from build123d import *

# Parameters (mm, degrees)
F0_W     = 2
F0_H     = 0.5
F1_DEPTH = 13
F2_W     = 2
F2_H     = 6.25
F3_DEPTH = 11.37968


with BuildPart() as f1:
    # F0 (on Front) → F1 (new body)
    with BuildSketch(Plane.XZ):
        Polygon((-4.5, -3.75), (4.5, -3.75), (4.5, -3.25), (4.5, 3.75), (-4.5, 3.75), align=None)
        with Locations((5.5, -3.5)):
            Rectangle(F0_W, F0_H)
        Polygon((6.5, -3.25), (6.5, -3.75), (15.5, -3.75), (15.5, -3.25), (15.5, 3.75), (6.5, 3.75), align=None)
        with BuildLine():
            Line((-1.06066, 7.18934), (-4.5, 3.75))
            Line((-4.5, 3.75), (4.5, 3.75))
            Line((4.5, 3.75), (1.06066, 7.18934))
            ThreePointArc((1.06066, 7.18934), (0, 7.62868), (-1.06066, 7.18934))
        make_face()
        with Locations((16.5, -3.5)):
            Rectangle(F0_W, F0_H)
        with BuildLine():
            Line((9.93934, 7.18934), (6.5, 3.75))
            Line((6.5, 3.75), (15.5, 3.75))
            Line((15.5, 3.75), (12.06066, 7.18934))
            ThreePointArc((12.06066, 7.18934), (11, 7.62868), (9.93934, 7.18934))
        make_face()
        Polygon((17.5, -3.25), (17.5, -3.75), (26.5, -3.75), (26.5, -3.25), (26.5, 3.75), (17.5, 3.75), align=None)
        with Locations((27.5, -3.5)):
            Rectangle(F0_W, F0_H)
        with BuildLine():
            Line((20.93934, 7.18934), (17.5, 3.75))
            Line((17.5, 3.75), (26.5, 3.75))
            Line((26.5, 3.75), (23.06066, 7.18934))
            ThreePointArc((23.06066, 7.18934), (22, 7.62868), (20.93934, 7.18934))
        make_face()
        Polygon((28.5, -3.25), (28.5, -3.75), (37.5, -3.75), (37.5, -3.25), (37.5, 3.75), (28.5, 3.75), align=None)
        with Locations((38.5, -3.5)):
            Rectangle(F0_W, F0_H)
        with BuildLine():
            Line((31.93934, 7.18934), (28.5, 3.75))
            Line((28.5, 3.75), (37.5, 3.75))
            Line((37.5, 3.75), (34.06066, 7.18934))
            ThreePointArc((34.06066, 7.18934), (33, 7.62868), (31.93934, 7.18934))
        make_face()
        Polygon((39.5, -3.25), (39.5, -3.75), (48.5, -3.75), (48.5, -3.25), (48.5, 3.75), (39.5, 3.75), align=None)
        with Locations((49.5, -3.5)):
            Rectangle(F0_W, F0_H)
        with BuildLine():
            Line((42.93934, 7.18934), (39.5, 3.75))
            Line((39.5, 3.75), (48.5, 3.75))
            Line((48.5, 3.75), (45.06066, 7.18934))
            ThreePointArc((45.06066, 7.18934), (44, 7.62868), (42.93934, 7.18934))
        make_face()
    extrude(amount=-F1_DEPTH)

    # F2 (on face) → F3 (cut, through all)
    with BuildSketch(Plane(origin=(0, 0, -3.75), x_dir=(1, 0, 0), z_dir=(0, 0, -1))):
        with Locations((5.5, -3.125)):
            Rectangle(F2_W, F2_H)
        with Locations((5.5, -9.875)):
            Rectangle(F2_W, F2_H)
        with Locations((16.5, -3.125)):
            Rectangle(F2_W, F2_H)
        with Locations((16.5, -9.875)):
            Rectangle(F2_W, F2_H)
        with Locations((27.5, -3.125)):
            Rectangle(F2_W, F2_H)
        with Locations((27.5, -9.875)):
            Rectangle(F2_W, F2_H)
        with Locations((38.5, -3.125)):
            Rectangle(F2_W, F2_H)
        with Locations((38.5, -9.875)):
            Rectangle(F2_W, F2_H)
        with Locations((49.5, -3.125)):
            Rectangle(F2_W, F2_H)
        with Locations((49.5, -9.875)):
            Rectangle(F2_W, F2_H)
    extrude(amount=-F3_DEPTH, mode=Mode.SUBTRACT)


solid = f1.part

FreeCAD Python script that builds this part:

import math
import FreeCAD as App
import Part
import Sketcher
Q = App.Units.Quantity

doc = App.newDocument("Part")
body = doc.addObject("PartDesign::Body", "Body")

# Sketch on XZ plane
sketch1 = body.newObject("Sketcher::SketchObject", "Sketch")
sketch1.AttachmentSupport = (doc.getObject("XZ_Plane"), [""])
sketch1.MapMode = "FlatFace"
sketch1.addGeometry([
    Part.LineSegment(App.Vector(-4.5, -3.8, 0), App.Vector(50.5, -3.8, 0)),  # 0
    Part.LineSegment(App.Vector(50.5, -3.8, 0), App.Vector(50.5, -3.2, 0)),  # 1
    Part.LineSegment(App.Vector(50.5, -3.2, 0), App.Vector(48.5, -3.2, 0)),  # 2
    Part.LineSegment(App.Vector(48.5, -3.2, 0), App.Vector(48.5, 3.8, 0)),  # 3
    Part.LineSegment(App.Vector(48.5, 3.8, 0), App.Vector(45.1, 7.2, 0)),  # 4
    Part.ArcOfCircle(Part.Circle(App.Vector(44, 6.1, 0), App.Vector(0, 0, 1), 1.5), math.radians(45), math.radians(135)),  # 5
    Part.LineSegment(App.Vector(42.9, 7.2, 0), App.Vector(39.5, 3.8, 0)),  # 6
    Part.LineSegment(App.Vector(39.5, 3.8, 0), App.Vector(39.5, -3.2, 0)),  # 7
    Part.LineSegment(App.Vector(39.5, -3.2, 0), App.Vector(37.5, -3.2, 0)),  # 8
    Part.LineSegment(App.Vector(37.5, -3.2, 0), App.Vector(37.5, 3.8, 0)),  # 9
    Part.LineSegment(App.Vector(37.5, 3.8, 0), App.Vector(34.1, 7.2, 0)),  # 10
    Part.ArcOfCircle(Part.Circle(App.Vector(33, 6.1, 0), App.Vector(0, 0, 1), 1.5), math.radians(45), math.radians(135)),  # 11
    Part.LineSegment(App.Vector(31.9, 7.2, 0), App.Vector(28.5, 3.8, 0)),  # 12
    Part.LineSegment(App.Vector(28.5, 3.8, 0), App.Vector(28.5, -3.2, 0)),  # 13
    Part.LineSegment(App.Vector(28.5, -3.2, 0), App.Vector(26.5, -3.2, 0)),  # 14
    Part.LineSegment(App.Vector(26.5, -3.2, 0), App.Vector(26.5, 3.8, 0)),  # 15
    Part.LineSegment(App.Vector(26.5, 3.8, 0), App.Vector(23.1, 7.2, 0)),  # 16
    Part.ArcOfCircle(Part.Circle(App.Vector(22, 6.1, 0), App.Vector(0, 0, 1), 1.5), math.radians(45), math.radians(135)),  # 17
    Part.LineSegment(App.Vector(20.9, 7.2, 0), App.Vector(17.5, 3.8, 0)),  # 18
    Part.LineSegment(App.Vector(17.5, 3.8, 0), App.Vector(17.5, -3.2, 0)),  # 19
    Part.LineSegment(App.Vector(17.5, -3.2, 0), App.Vector(15.5, -3.2, 0)),  # 20
    Part.LineSegment(App.Vector(15.5, -3.2, 0), App.Vector(15.5, 3.8, 0)),  # 21
    Part.LineSegment(App.Vector(15.5, 3.8, 0), App.Vector(12.1, 7.2, 0)),  # 22
    Part.ArcOfCircle(Part.Circle(App.Vector(11, 6.1, 0), App.Vector(0, 0, 1), 1.5), math.radians(45), math.radians(135)),  # 23
    Part.LineSegment(App.Vector(9.9, 7.2, 0), App.Vector(6.5, 3.8, 0)),  # 24
    Part.LineSegment(App.Vector(6.5, 3.8, 0), App.Vector(6.5, -3.2, 0)),  # 25
    Part.LineSegment(App.Vector(6.5, -3.2, 0), App.Vector(4.5, -3.2, 0)),  # 26
    Part.LineSegment(App.Vector(4.5, -3.2, 0), App.Vector(4.5, 3.8, 0)),  # 27
    Part.LineSegment(App.Vector(4.5, 3.8, 0), App.Vector(1.1, 7.2, 0)),  # 28
    Part.ArcOfCircle(Part.Circle(App.Vector(0, 6.1, 0), App.Vector(0, 0, 1), 1.5), math.radians(45), math.radians(135)),  # 29
    Part.LineSegment(App.Vector(-1.1, 7.2, 0), App.Vector(-4.5, 3.8, 0)),  # 30
    Part.LineSegment(App.Vector(-4.5, 3.8, 0), App.Vector(-4.5, -3.8, 0)),  # 31
], False)
sketch1.addConstraint([
    Sketcher.Constraint("Coincident", 0, 2, 1, 1),
    Sketcher.Constraint("Coincident", 1, 2, 2, 1),
    Sketcher.Constraint("Coincident", 2, 2, 3, 1),
    Sketcher.Constraint("Coincident", 3, 2, 4, 1),
    Sketcher.Constraint("Tangent", 4, 2, 5, 1),
    Sketcher.Constraint("Tangent", 5, 2, 6, 1),
    Sketcher.Constraint("Coincident", 6, 2, 7, 1),
    Sketcher.Constraint("Coincident", 7, 2, 8, 1),
    Sketcher.Constraint("Coincident", 8, 2, 9, 1),
    Sketcher.Constraint("Coincident", 9, 2, 10, 1),
    Sketcher.Constraint("Tangent", 10, 2, 11, 1),
    Sketcher.Constraint("Tangent", 11, 2, 12, 1),
    Sketcher.Constraint("Coincident", 12, 2, 13, 1),
    Sketcher.Constraint("Coincident", 13, 2, 14, 1),
    Sketcher.Constraint("Coincident", 14, 2, 15, 1),
    Sketcher.Constraint("Coincident", 15, 2, 16, 1),
    Sketcher.Constraint("Tangent", 16, 2, 17, 1),
    Sketcher.Constraint("Tangent", 17, 2, 18, 1),
    Sketcher.Constraint("Coincident", 18, 2, 19, 1),
    Sketcher.Constraint("Coincident", 19, 2, 20, 1),
    Sketcher.Constraint("Coincident", 20, 2, 21, 1),
    Sketcher.Constraint("Coincident", 21, 2, 22, 1),
    Sketcher.Constraint("Tangent", 22, 2, 23, 1),
    Sketcher.Constraint("Tangent", 23, 2, 24, 1),
    Sketcher.Constraint("Coincident", 24, 2, 25, 1),
    Sketcher.Constraint("Coincident", 25, 2, 26, 1),
    Sketcher.Constraint("Coincident", 26, 2, 27, 1),
    Sketcher.Constraint("Coincident", 27, 2, 28, 1),
    Sketcher.Constraint("Tangent", 28, 2, 29, 1),
    Sketcher.Constraint("Tangent", 29, 2, 30, 1),
    Sketcher.Constraint("Coincident", 30, 2, 31, 1),
    Sketcher.Constraint("Coincident", 31, 2, 0, 1),
    Sketcher.Constraint("Horizontal", 0),
    Sketcher.Constraint("Vertical", 1),
    Sketcher.Constraint("Horizontal", 2),
    Sketcher.Constraint("Vertical", 3),
    Sketcher.Constraint("Vertical", 7),
    Sketcher.Constraint("Horizontal", 8),
    Sketcher.Constraint("Vertical", 9),
    Sketcher.Constraint("Vertical", 13),
    Sketcher.Constraint("Horizontal", 14),
    Sketcher.Constraint("Vertical", 15),
    Sketcher.Constraint("Vertical", 19),
    Sketcher.Constraint("Horizontal", 20),
    Sketcher.Constraint("Vertical", 21),
    Sketcher.Constraint("Vertical", 25),
    Sketcher.Constraint("Horizontal", 26),
    Sketcher.Constraint("Vertical", 27),
    Sketcher.Constraint("Vertical", 31),
    Sketcher.Constraint("Equal", 5, 11),
    Sketcher.Constraint("Equal", 11, 17),
    Sketcher.Constraint("Equal", 17, 23),
    Sketcher.Constraint("Equal", 23, 29),
    Sketcher.Constraint("Symmetric", 27, 2, 31, 2, -1, 1),
    Sketcher.Constraint("Symmetric", 28, 2, 29, 2, -2),
    Sketcher.Constraint("Perpendicular", 4, 6),
    Sketcher.Constraint("Perpendicular", 6, 10),
    Sketcher.Constraint("Perpendicular", 10, 12),
    Sketcher.Constraint("Perpendicular", 12, 16),
    Sketcher.Constraint("Perpendicular", 16, 18),
    Sketcher.Constraint("Perpendicular", 18, 22),
    Sketcher.Constraint("Perpendicular", 22, 24),
    Sketcher.Constraint("Perpendicular", 24, 28),
    Sketcher.Constraint("Perpendicular", 28, 30),
    Sketcher.Constraint("Horizontal", 5, 3, 11, 3),
    Sketcher.Constraint("Horizontal", 11, 3, 17, 3),
    Sketcher.Constraint("Horizontal", 17, 3, 23, 3),
    Sketcher.Constraint("Horizontal", 23, 3, 29, 3),
    Sketcher.Constraint("Horizontal", 3, 2, 6, 2),
    Sketcher.Constraint("Horizontal", 2, 2, 7, 2),
    Sketcher.Constraint("Horizontal", 6, 2, 9, 2),
    Sketcher.Constraint("Horizontal", 9, 2, 12, 2),
    Sketcher.Constraint("Horizontal", 8, 2, 13, 2),
    Sketcher.Constraint("Horizontal", 12, 2, 15, 2),
    Sketcher.Constraint("Horizontal", 15, 2, 18, 2),
    Sketcher.Constraint("Horizontal", 14, 2, 19, 2),
    Sketcher.Constraint("Horizontal", 18, 2, 21, 2),
    Sketcher.Constraint("Horizontal", 21, 2, 24, 2),
    Sketcher.Constraint("Horizontal", 20, 2, 25, 2),
    Sketcher.Constraint("Horizontal", 24, 2, 27, 2),
    Sketcher.Constraint("Equal", 2, 8),
    Sketcher.Constraint("Equal", 8, 14),
    Sketcher.Constraint("Equal", 14, 20),
    Sketcher.Constraint("Equal", 20, 26),
    Sketcher.Constraint("Radius", 5, Q("1.499999 mm")),
    Sketcher.Constraint("DistanceX", 0, 1, 0, 2, Q("55 mm")),
    Sketcher.Constraint("DistanceX", 2, 2, 2, 1, Q("2 mm")),
    Sketcher.Constraint("DistanceY", 3, 1, 3, 2, Q("7 mm")),
    Sketcher.Constraint("DistanceY", 1, 1, 1, 2, Q("0.5 mm")),
])
pad1 = body.newObject("PartDesign::Pad", "Pad")
pad1.Profile = sketch1
pad1.Length = 13
pad1.Reversed = True

# Sketch on XY plane
sketch2 = body.newObject("Sketcher::SketchObject", "Sketch001")
sketch2.AttachmentSupport = (doc.getObject("XY_Plane"), [""])
sketch2.MapMode = "FlatFace"
sketch2.AttachmentOffset = App.Placement(App.Vector(0, 0, -3.75), App.Rotation())
sketch2.addGeometry([
    Part.LineSegment(App.Vector(4.5, 0, 0), App.Vector(4.5, 6.2, 0)),  # 0
    Part.LineSegment(App.Vector(4.5, 6.2, 0), App.Vector(6.5, 6.2, 0)),  # 1
    Part.LineSegment(App.Vector(6.5, 6.2, 0), App.Vector(6.5, 0, 0)),  # 2
    Part.LineSegment(App.Vector(6.5, 0, 0), App.Vector(4.5, 0, 0)),  # 3
    Part.LineSegment(App.Vector(4.5, 6.8, 0), App.Vector(4.5, 13, 0)),  # 4
    Part.LineSegment(App.Vector(4.5, 13, 0), App.Vector(6.5, 13, 0)),  # 5
    Part.LineSegment(App.Vector(6.5, 13, 0), App.Vector(6.5, 6.8, 0)),  # 6
    Part.LineSegment(App.Vector(6.5, 6.8, 0), App.Vector(4.5, 6.8, 0)),  # 7
    Part.LineSegment(App.Vector(15.5, 0, 0), App.Vector(15.5, 6.2, 0)),  # 8
    Part.LineSegment(App.Vector(15.5, 6.2, 0), App.Vector(17.5, 6.2, 0)),  # 9
    Part.LineSegment(App.Vector(17.5, 6.2, 0), App.Vector(17.5, 0, 0)),  # 10
    Part.LineSegment(App.Vector(17.5, 0, 0), App.Vector(15.5, 0, 0)),  # 11
    Part.LineSegment(App.Vector(15.5, 6.8, 0), App.Vector(15.5, 13, 0)),  # 12
    Part.LineSegment(App.Vector(15.5, 13, 0), App.Vector(17.5, 13, 0)),  # 13
    Part.LineSegment(App.Vector(17.5, 13, 0), App.Vector(17.5, 6.8, 0)),  # 14
    Part.LineSegment(App.Vector(17.5, 6.8, 0), App.Vector(15.5, 6.8, 0)),  # 15
    Part.LineSegment(App.Vector(26.5, 0, 0), App.Vector(26.5, 6.2, 0)),  # 16
    Part.LineSegment(App.Vector(26.5, 6.2, 0), App.Vector(28.5, 6.2, 0)),  # 17
    Part.LineSegment(App.Vector(28.5, 6.2, 0), App.Vector(28.5, 0, 0)),  # 18
    Part.LineSegment(App.Vector(28.5, 0, 0), App.Vector(26.5, 0, 0)),  # 19
    Part.LineSegment(App.Vector(26.5, 6.8, 0), App.Vector(26.5, 13, 0)),  # 20
    Part.LineSegment(App.Vector(26.5, 13, 0), App.Vector(28.5, 13, 0)),  # 21
    Part.LineSegment(App.Vector(28.5, 13, 0), App.Vector(28.5, 6.8, 0)),  # 22
    Part.LineSegment(App.Vector(28.5, 6.8, 0), App.Vector(26.5, 6.8, 0)),  # 23
    Part.LineSegment(App.Vector(37.5, 0, 0), App.Vector(37.5, 6.2, 0)),  # 24
    Part.LineSegment(App.Vector(37.5, 6.2, 0), App.Vector(39.5, 6.2, 0)),  # 25
    Part.LineSegment(App.Vector(39.5, 6.2, 0), App.Vector(39.5, 0, 0)),  # 26
    Part.LineSegment(App.Vector(39.5, 0, 0), App.Vector(37.5, 0, 0)),  # 27
    Part.LineSegment(App.Vector(37.5, 6.8, 0), App.Vector(37.5, 13, 0)),  # 28
    Part.LineSegment(App.Vector(37.5, 13, 0), App.Vector(39.5, 13, 0)),  # 29
    Part.LineSegment(App.Vector(39.5, 13, 0), App.Vector(39.5, 6.8, 0)),  # 30
    Part.LineSegment(App.Vector(39.5, 6.8, 0), App.Vector(37.5, 6.8, 0)),  # 31
    Part.LineSegment(App.Vector(48.5, 0, 0), App.Vector(48.5, 6.2, 0)),  # 32
    Part.LineSegment(App.Vector(48.5, 6.2, 0), App.Vector(50.5, 6.2, 0)),  # 33
    Part.LineSegment(App.Vector(50.5, 6.2, 0), App.Vector(50.5, 0, 0)),  # 34
    Part.LineSegment(App.Vector(50.5, 0, 0), App.Vector(48.5, 0, 0)),  # 35
    Part.LineSegment(App.Vector(48.5, 6.8, 0), App.Vector(48.5, 13, 0)),  # 36
    Part.LineSegment(App.Vector(48.5, 13, 0), App.Vector(50.5, 13, 0)),  # 37
    Part.LineSegment(App.Vector(50.5, 13, 0), App.Vector(50.5, 6.8, 0)),  # 38
    Part.LineSegment(App.Vector(50.5, 6.8, 0), App.Vector(48.5, 6.8, 0)),  # 39
], False)
sketch2.addConstraint([
    Sketcher.Constraint("Coincident", 0, 2, 1, 1),
    Sketcher.Constraint("Coincident", 1, 2, 2, 1),
    Sketcher.Constraint("Coincident", 2, 2, 3, 1),
    Sketcher.Constraint("Coincident", 3, 2, 0, 1),
    Sketcher.Constraint("Coincident", 4, 2, 5, 1),
    Sketcher.Constraint("Coincident", 5, 2, 6, 1),
    Sketcher.Constraint("Coincident", 6, 2, 7, 1),
    Sketcher.Constraint("Coincident", 7, 2, 4, 1),
    Sketcher.Constraint("Coincident", 8, 2, 9, 1),
    Sketcher.Constraint("Coincident", 9, 2, 10, 1),
    Sketcher.Constraint("Coincident", 10, 2, 11, 1),
    Sketcher.Constraint("Coincident", 11, 2, 8, 1),
    Sketcher.Constraint("Coincident", 12, 2, 13, 1),
    Sketcher.Constraint("Coincident", 13, 2, 14, 1),
    Sketcher.Constraint("Coincident", 14, 2, 15, 1),
    Sketcher.Constraint("Coincident", 15, 2, 12, 1),
    Sketcher.Constraint("Coincident", 16, 2, 17, 1),
    Sketcher.Constraint("Coincident", 17, 2, 18, 1),
    Sketcher.Constraint("Coincident", 18, 2, 19, 1),
    Sketcher.Constraint("Coincident", 19, 2, 16, 1),
    Sketcher.Constraint("Coincident", 20, 2, 21, 1),
    Sketcher.Constraint("Coincident", 21, 2, 22, 1),
    Sketcher.Constraint("Coincident", 22, 2, 23, 1),
    Sketcher.Constraint("Coincident", 23, 2, 20, 1),
    Sketcher.Constraint("Coincident", 24, 2, 25, 1),
    Sketcher.Constraint("Coincident", 25, 2, 26, 1),
    Sketcher.Constraint("Coincident", 26, 2, 27, 1),
    Sketcher.Constraint("Coincident", 27, 2, 24, 1),
    Sketcher.Constraint("Coincident", 28, 2, 29, 1),
    Sketcher.Constraint("Coincident", 29, 2, 30, 1),
    Sketcher.Constraint("Coincident", 30, 2, 31, 1),
    Sketcher.Constraint("Coincident", 31, 2, 28, 1),
    Sketcher.Constraint("Coincident", 32, 2, 33, 1),
    Sketcher.Constraint("Coincident", 33, 2, 34, 1),
    Sketcher.Constraint("Coincident", 34, 2, 35, 1),
    Sketcher.Constraint("Coincident", 35, 2, 32, 1),
    Sketcher.Constraint("Coincident", 36, 2, 37, 1),
    Sketcher.Constraint("Coincident", 37, 2, 38, 1),
    Sketcher.Constraint("Coincident", 38, 2, 39, 1),
    Sketcher.Constraint("Coincident", 39, 2, 36, 1),
    Sketcher.Constraint("Vertical", 0),
    Sketcher.Constraint("Horizontal", 1),
    Sketcher.Constraint("Vertical", 2),
    Sketcher.Constraint("Horizontal", 3),
    Sketcher.Constraint("Vertical", 4),
    Sketcher.Constraint("Horizontal", 5),
    Sketcher.Constraint("Vertical", 6),
    Sketcher.Constraint("Horizontal", 7),
    Sketcher.Constraint("Vertical", 8),
    Sketcher.Constraint("Horizontal", 9),
    Sketcher.Constraint("Vertical", 10),
    Sketcher.Constraint("Horizontal", 11),
    Sketcher.Constraint("Vertical", 12),
    Sketcher.Constraint("Horizontal", 13),
    Sketcher.Constraint("Vertical", 14),
    Sketcher.Constraint("Horizontal", 15),
    Sketcher.Constraint("Vertical", 16),
    Sketcher.Constraint("Horizontal", 17),
    Sketcher.Constraint("Vertical", 18),
    Sketcher.Constraint("Horizontal", 19),
    Sketcher.Constraint("Vertical", 20),
    Sketcher.Constraint("Horizontal", 21),
    Sketcher.Constraint("Vertical", 22),
    Sketcher.Constraint("Horizontal", 23),
    Sketcher.Constraint("Vertical", 24),
    Sketcher.Constraint("Horizontal", 25),
    Sketcher.Constraint("Vertical", 26),
    Sketcher.Constraint("Horizontal", 27),
    Sketcher.Constraint("Vertical", 28),
    Sketcher.Constraint("Horizontal", 29),
    Sketcher.Constraint("Vertical", 30),
    Sketcher.Constraint("Horizontal", 31),
    Sketcher.Constraint("Vertical", 32),
    Sketcher.Constraint("Horizontal", 33),
    Sketcher.Constraint("Vertical", 34),
    Sketcher.Constraint("Horizontal", 35),
    Sketcher.Constraint("Vertical", 36),
    Sketcher.Constraint("Horizontal", 37),
    Sketcher.Constraint("Vertical", 38),
    Sketcher.Constraint("Horizontal", 39),
    Sketcher.Constraint("PointOnObject", 2, 2, -1),
    Sketcher.Constraint("PointOnObject", 10, 2, -1),
    Sketcher.Constraint("PointOnObject", 18, 2, -1),
    Sketcher.Constraint("PointOnObject", 26, 2, -1),
    Sketcher.Constraint("PointOnObject", 34, 2, -1),
    Sketcher.Constraint("Horizontal", 1, 2, 8, 2),
    Sketcher.Constraint("Horizontal", 5, 2, 12, 2),
    Sketcher.Constraint("Horizontal", 7, 2, 14, 2),
    Sketcher.Constraint("Horizontal", 9, 2, 16, 2),
    Sketcher.Constraint("Horizontal", 13, 2, 20, 2),
    Sketcher.Constraint("Horizontal", 15, 2, 22, 2),
    Sketcher.Constraint("Horizontal", 17, 2, 24, 2),
    Sketcher.Constraint("Horizontal", 21, 2, 28, 2),
    Sketcher.Constraint("Horizontal", 23, 2, 30, 2),
    Sketcher.Constraint("Horizontal", 25, 2, 32, 2),
    Sketcher.Constraint("Horizontal", 29, 2, 36, 2),
    Sketcher.Constraint("Horizontal", 31, 2, 38, 2),
    Sketcher.Constraint("Vertical", 3, 2, 4, 2),
    Sketcher.Constraint("Vertical", 2, 2, 5, 2),
    Sketcher.Constraint("Vertical", 11, 2, 12, 2),
    Sketcher.Constraint("Vertical", 10, 2, 13, 2),
    Sketcher.Constraint("Vertical", 19, 2, 20, 2),
    Sketcher.Constraint("Vertical", 18, 2, 21, 2),
    Sketcher.Constraint("Vertical", 27, 2, 28, 2),
    Sketcher.Constraint("Vertical", 26, 2, 29, 2),
    Sketcher.Constraint("Vertical", 35, 2, 36, 2),
    Sketcher.Constraint("Vertical", 34, 2, 37, 2),
    Sketcher.Constraint("Equal", 7, 9),
    Sketcher.Constraint("Equal", 15, 17),
    Sketcher.Constraint("Equal", 23, 25),
    Sketcher.Constraint("Equal", 31, 33),
    Sketcher.Constraint("Equal", 2, 4),
    Sketcher.Constraint("DistanceX", 1, 1, 1, 2, Q("2 mm")),
    Sketcher.Constraint("DistanceY", -1, 1, 4, 2, Q("13 mm")),
    Sketcher.Constraint("DistanceX", 1, 2, 8, 2, Q("9 mm")),
    Sketcher.Constraint("DistanceX", 9, 2, 16, 2, Q("9 mm")),
    Sketcher.Constraint("DistanceX", 17, 2, 24, 2, Q("9 mm")),
    Sketcher.Constraint("DistanceX", 25, 2, 32, 2, Q("9 mm")),
    Sketcher.Constraint("DistanceY", 0, 1, 0, 2, Q("6.25 mm")),
    Sketcher.Constraint("DistanceX", -1, 1, 0, 2, Q("4.5 mm")),
])
pocket1 = body.newObject("PartDesign::Pocket", "Pocket")
pocket1.Profile = sketch2
pocket1.Type = "ThroughAll"
pocket1.Reversed = True

doc.recompute()
